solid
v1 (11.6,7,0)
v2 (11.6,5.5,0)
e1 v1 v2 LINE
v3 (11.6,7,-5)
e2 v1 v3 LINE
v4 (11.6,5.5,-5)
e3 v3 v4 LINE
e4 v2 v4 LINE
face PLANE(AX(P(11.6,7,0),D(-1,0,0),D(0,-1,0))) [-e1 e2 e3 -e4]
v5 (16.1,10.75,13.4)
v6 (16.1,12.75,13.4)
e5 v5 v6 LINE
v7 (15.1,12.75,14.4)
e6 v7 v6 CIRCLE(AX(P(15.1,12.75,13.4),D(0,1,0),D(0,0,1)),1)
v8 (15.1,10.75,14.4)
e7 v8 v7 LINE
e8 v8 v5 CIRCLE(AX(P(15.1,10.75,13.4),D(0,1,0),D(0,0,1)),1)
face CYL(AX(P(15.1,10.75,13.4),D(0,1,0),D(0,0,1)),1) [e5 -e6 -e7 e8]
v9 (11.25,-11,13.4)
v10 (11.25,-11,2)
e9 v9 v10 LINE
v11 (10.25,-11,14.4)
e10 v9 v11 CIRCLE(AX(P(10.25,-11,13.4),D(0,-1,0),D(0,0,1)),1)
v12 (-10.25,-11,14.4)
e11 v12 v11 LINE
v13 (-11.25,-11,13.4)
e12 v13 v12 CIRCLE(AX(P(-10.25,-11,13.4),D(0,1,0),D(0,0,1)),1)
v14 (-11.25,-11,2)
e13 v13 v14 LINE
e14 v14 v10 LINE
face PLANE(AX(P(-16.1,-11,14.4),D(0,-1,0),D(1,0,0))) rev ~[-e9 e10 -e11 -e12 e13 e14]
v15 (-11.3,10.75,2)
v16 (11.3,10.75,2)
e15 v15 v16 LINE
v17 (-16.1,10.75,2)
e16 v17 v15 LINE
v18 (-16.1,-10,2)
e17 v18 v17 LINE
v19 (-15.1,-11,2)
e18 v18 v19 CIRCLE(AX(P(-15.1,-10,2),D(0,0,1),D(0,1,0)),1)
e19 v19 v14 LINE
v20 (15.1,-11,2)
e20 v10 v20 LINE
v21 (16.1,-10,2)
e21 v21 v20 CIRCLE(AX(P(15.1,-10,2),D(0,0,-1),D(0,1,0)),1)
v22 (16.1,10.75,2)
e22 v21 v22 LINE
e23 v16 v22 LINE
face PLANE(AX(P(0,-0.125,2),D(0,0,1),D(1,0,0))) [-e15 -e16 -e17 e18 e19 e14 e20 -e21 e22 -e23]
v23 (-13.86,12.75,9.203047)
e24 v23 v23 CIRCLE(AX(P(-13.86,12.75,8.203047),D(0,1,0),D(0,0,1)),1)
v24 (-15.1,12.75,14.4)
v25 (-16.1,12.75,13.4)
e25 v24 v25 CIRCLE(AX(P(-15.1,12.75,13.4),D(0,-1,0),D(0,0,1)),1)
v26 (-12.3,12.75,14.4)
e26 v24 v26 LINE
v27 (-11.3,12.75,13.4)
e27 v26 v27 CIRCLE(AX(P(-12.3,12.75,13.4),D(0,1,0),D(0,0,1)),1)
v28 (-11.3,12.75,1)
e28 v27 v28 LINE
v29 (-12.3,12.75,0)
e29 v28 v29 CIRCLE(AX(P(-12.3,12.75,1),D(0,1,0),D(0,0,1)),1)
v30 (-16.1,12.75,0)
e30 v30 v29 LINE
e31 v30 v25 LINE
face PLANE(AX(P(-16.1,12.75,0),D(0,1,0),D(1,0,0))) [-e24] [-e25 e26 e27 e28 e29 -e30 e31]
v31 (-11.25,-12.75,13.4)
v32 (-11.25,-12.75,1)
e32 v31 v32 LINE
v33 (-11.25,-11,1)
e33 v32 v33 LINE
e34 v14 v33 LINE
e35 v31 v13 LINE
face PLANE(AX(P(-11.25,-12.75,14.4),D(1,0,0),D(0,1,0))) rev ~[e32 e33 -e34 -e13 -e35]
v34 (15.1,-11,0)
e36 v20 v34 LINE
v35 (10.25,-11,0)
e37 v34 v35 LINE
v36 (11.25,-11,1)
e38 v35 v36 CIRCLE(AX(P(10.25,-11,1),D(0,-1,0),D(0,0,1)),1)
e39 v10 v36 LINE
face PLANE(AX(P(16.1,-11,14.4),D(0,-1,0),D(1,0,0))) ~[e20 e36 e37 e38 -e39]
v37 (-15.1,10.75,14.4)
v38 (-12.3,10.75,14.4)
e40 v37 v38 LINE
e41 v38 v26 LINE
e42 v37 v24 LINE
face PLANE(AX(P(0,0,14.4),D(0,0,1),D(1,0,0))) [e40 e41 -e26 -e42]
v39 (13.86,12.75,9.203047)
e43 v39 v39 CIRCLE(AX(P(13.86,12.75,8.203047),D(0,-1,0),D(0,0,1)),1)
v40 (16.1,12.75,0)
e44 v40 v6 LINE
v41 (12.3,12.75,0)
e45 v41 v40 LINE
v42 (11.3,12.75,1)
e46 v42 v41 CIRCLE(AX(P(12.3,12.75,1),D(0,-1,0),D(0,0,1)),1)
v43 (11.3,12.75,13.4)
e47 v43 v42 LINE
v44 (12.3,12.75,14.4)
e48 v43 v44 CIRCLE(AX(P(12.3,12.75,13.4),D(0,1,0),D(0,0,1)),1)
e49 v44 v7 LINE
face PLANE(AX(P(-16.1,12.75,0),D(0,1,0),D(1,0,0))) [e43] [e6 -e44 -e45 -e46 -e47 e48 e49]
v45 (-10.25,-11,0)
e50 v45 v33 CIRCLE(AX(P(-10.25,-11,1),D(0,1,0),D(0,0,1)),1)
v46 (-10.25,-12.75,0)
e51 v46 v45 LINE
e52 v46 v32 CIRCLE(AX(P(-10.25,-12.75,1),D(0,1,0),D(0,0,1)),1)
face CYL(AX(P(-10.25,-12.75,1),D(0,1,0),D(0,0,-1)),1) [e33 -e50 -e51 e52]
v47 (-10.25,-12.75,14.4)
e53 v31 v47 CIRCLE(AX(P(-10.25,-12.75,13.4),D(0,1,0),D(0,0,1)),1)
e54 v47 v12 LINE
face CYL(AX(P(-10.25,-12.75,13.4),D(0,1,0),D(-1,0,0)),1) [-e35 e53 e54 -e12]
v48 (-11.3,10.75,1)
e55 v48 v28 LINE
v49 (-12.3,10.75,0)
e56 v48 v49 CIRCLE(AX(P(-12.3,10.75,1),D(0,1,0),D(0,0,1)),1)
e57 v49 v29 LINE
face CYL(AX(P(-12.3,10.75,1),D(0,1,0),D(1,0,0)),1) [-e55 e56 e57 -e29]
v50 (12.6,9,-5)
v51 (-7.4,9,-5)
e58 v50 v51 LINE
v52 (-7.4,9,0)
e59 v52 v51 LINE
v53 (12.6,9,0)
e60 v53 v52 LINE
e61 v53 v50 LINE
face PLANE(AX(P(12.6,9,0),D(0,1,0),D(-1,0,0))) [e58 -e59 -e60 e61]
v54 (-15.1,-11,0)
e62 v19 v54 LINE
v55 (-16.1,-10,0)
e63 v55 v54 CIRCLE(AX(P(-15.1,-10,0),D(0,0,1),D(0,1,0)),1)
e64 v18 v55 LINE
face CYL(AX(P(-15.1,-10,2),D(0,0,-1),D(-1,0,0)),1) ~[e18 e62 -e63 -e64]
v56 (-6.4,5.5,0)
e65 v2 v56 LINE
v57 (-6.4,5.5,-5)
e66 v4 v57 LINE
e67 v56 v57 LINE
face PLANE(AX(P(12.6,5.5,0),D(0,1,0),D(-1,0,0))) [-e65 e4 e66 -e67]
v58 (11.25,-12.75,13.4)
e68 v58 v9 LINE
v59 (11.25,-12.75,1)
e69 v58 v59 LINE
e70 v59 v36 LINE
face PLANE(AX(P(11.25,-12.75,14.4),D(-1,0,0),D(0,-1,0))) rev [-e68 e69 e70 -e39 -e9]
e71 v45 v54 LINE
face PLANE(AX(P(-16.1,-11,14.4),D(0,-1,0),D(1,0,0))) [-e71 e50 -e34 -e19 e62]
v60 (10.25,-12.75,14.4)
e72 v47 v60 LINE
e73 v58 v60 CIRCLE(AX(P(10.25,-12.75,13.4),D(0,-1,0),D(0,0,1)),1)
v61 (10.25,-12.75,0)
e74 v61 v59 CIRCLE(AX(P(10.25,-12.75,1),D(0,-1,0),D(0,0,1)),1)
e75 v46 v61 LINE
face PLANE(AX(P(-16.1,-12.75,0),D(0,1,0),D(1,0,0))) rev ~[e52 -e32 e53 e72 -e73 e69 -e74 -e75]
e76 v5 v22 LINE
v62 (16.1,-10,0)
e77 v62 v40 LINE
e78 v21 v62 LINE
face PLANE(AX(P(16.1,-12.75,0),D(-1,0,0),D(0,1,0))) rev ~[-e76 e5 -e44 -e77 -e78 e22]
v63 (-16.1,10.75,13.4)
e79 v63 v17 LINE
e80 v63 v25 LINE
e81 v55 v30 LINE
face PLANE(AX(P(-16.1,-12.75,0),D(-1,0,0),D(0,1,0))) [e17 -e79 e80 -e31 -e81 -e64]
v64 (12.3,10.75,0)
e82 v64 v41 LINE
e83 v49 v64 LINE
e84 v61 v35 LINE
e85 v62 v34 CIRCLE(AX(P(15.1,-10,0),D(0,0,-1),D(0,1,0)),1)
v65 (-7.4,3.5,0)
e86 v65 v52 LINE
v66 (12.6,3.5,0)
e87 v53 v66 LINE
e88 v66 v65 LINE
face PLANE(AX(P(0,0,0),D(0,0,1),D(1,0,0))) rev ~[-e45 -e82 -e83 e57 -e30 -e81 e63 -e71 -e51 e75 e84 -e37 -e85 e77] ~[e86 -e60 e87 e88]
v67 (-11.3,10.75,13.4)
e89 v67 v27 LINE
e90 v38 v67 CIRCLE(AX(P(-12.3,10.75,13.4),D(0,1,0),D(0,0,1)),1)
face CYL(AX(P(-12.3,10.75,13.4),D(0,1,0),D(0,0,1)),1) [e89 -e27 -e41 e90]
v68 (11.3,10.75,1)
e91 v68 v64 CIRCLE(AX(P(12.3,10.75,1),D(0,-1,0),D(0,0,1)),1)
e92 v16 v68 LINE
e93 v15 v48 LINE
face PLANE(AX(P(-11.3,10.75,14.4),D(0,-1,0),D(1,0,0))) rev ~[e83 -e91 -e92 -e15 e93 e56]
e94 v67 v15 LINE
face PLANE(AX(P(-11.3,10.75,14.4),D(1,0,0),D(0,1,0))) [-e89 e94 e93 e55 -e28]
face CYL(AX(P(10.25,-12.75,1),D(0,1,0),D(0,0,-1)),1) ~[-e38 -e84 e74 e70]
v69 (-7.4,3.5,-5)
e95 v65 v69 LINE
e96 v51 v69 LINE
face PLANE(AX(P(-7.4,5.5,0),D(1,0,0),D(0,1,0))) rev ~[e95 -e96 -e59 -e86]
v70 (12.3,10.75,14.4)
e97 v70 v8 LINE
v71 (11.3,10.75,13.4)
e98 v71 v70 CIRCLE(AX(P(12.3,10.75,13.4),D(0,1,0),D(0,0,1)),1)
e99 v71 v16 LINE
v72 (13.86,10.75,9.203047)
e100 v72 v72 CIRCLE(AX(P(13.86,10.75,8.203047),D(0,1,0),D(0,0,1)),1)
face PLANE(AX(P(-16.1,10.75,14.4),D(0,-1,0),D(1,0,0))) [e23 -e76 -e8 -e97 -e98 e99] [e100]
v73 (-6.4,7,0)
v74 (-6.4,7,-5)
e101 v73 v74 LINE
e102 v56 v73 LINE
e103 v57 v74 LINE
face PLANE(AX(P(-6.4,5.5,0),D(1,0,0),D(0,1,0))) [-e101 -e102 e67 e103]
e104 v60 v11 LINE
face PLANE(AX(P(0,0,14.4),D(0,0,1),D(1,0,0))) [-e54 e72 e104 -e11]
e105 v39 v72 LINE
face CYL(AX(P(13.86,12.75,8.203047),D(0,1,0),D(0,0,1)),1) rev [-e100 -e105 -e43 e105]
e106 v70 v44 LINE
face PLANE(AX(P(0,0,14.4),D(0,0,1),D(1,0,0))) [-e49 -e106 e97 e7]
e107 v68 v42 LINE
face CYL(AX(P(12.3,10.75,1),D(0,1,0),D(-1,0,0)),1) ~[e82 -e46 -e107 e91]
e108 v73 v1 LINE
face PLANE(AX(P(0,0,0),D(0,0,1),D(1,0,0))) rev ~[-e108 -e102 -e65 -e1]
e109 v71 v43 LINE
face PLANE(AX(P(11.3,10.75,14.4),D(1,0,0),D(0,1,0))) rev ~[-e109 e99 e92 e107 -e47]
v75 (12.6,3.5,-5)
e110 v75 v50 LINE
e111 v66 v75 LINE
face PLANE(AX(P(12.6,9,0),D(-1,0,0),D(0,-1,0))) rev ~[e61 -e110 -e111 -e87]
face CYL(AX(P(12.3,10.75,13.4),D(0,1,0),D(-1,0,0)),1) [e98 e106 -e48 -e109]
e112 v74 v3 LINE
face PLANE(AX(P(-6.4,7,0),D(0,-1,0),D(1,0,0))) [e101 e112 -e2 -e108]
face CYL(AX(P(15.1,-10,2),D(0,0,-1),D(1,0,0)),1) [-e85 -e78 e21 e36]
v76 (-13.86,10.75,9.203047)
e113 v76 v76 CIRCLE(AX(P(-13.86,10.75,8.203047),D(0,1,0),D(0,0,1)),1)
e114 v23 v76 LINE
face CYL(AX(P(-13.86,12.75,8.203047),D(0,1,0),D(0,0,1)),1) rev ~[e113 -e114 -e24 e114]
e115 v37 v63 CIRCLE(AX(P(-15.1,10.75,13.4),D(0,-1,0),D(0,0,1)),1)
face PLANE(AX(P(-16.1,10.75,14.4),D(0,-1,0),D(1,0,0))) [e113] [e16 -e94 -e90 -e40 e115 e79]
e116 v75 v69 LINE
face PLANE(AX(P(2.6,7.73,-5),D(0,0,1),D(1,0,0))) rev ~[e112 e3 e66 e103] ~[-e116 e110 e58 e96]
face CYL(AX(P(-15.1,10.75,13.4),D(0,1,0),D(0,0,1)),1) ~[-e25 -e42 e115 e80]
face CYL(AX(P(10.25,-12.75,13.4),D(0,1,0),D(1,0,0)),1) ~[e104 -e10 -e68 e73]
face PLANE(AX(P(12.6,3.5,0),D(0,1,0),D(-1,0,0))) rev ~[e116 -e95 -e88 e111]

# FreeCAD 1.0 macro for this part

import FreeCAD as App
import Part
import Sketcher


def edges_at(feature, points):
    """Names of the edges that pass closest to the given points."""
    edges = feature.Shape.Edges
    near = lambda p: min(range(len(edges)), key=lambda i: edges[i].distToShape(Part.Vertex(*p))[0])
    return sorted({f"Edge{near(p) + 1}" for p in points})


def add_polygon(sketch, points):
    """Adds a closed chain of lines whose ends are joined by coincident constraints."""
    first, n = sketch.GeometryCount, len(points)
    for a, b in zip(points, points[1:] + points[:1]):
        sketch.addGeometry(Part.LineSegment(App.Vector(*a, 0), App.Vector(*b, 0)), False)
    for i in range(n):
        sketch.addConstraint(Sketcher.Constraint("Coincident", first + i, 2, first + (i + 1) % n, 1))

doc = App.newDocument("Part")
body = doc.addObject("PartDesign::Body", "Body")

# Sketch on XY plane
sketch1 = doc.addObject("Sketcher::SketchObject", "Sketch")
body.addObject(sketch1)
sketch1.AttachmentSupport = (doc.XY_Plane, [""])
sketch1.MapMode = "FlatFace"
add_polygon(sketch1, [(-16, 13), (-16, -13), (16, -13), (16, 13)])  # lines 0-3
sketch1.addConstraint(Sketcher.Constraint("Vertical", 0))
sketch1.addConstraint(Sketcher.Constraint("Horizontal", 1))
sketch1.addConstraint(Sketcher.Constraint("Vertical", 2))
sketch1.addConstraint(Sketcher.Constraint("Horizontal", 3))
sketch1.addConstraint(Sketcher.Constraint("Symmetric", 0, 2, 2, 2, -1, 1))
sketch1.addConstraint(Sketcher.Constraint("DistanceX", 1, 1, 1, 2, 32.2))
sketch1.addConstraint(Sketcher.Constraint("DistanceY", 0, 2, 0, 1, 25.5))
pad1 = doc.addObject("PartDesign::Pad", "Pad")
body.addObject(pad1)
pad1.Profile = sketch1
pad1.Length = 14.4

# Sketch on XY plane
sketch2 = doc.addObject("Sketcher::SketchObject", "Sketch001")
body.addObject(sketch2)
sketch2.AttachmentSupport = (doc.XY_Plane, [""])
sketch2.MapMode = "FlatFace"
sketch2.AttachmentOffset = App.Placement(App.Vector(0, 0, 14.4), App.Rotation())
add_polygon(sketch2, [(-16, 11), (-16, -11), (16, -11), (16, 11)])  # lines 0-3
sketch2.addConstraint(Sketcher.Constraint("Vertical", 0))
sketch2.addConstraint(Sketcher.Constraint("Horizontal", 1))
sketch2.addConstraint(Sketcher.Constraint("Vertical", 2))
sketch2.addConstraint(Sketcher.Constraint("Horizontal", 3))
sketch2.addConstraint(Sketcher.Constraint("DistanceX", 1, 1, 1, 2, 32.2))
sketch2.addConstraint(Sketcher.Constraint("DistanceY", 0, 2, -1, 1, 11.0))
sketch2.addConstraint(Sketcher.Constraint("DistanceY", 0, 2, 0, 1, 21.75))
sketch2.addConstraint(Sketcher.Constraint("DistanceX", 0, 2, -1, 1, 16.1))
pocket1 = doc.addObject("PartDesign::Pocket", "Pocket")
body.addObject(pocket1)
pocket1.Profile = sketch2
pocket1.Length = 12.4

# Sketch on XY plane
sketch3 = doc.addObject("Sketcher::SketchObject", "Sketch002")
body.addObject(sketch3)
sketch3.AttachmentSupport = (doc.XY_Plane, [""])
sketch3.MapMode = "FlatFace"
sketch3.AttachmentOffset = App.Placement(App.Vector(0, 0, 14.4), App.Rotation())
add_polygon(sketch3, [(-11.3, 12.8), (-11.3, 10.8), (11.3, 10.8), (11.3, 12.8)])  # lines 0-3
sketch3.addConstraint(Sketcher.Constraint("Vertical", 0))
sketch3.addConstraint(Sketcher.Constraint("Horizontal", 1))
sketch3.addConstraint(Sketcher.Constraint("Vertical", 2))
sketch3.addConstraint(Sketcher.Constraint("Horizontal", 3))
sketch3.addConstraint(Sketcher.Constraint("DistanceY", 0, 2, 0, 1, 2.0))
sketch3.addConstraint(Sketcher.Constraint("DistanceX", 1, 1, 1, 2, 22.6))
sketch3.addConstraint(Sketcher.Constraint("DistanceX", 0, 2, -1, 1, 11.3))
sketch3.addConstraint(Sketcher.Constraint("DistanceY", -1, 1, 0, 2, 10.75))
pocket2 = doc.addObject("PartDesign::Pocket", "Pocket001")
body.addObject(pocket2)
pocket2.Profile = sketch3
pocket2.Length = 14.4
doc.recompute()

fillet = doc.addObject("PartDesign::Fillet", "Fillet")
body.addObject(fillet)
fillet.Base = (pocket2, edges_at(pocket2, [(-11.3, 11.75, 14.4)]))
fillet.Radius = 1
doc.recompute()

fillet2 = doc.addObject("PartDesign::Fillet", "Fillet001")
body.addObject(fillet2)
fillet2.Base = (fillet, edges_at(fillet, [(-16.1, 11.75, 14.4)]))
fillet2.Radius = 1
doc.recompute()

fillet3 = doc.addObject("PartDesign::Fillet", "Fillet002")
body.addObject(fillet3)
fillet3.Base = (fillet2, edges_at(fillet2, [(11.3, 11.75, 14.4)]))
fillet3.Radius = 1
doc.recompute()

fillet4 = doc.addObject("PartDesign::Fillet", "Fillet003")
body.addObject(fillet4)
fillet4.Base = (fillet3, edges_at(fillet3, [(16.1, 11.75, 14.4)]))
fillet4.Radius = 1

# Sketch on XZ plane
sketch4 = doc.addObject("Sketcher::SketchObject", "Sketch003")
body.addObject(sketch4)
sketch4.AttachmentSupport = (doc.XZ_Plane, [""])
sketch4.MapMode = "FlatFace"
sketch4.AttachmentOffset = App.Placement(App.Vector(0, 0, -12.75), App.Rotation())
sketch4.addGeometry(Part.Circle(App.Vector(-13.9, 8.2, 0), App.Vector(0, 0, 1), 1), False)
sketch4.addConstraint(Sketcher.Constraint("Diameter", 0, 2.0))
sketch4.addConstraint(Sketcher.Constraint("DistanceX", 0, 3, -1, 1, 13.86))
sketch4.addConstraint(Sketcher.Constraint("DistanceY", -1, 1, 0, 3, 8.203047))
pocket3 = doc.addObject("PartDesign::Pocket", "Pocket002")
body.addObject(pocket3)
pocket3.Profile = sketch4
pocket3.Length = 10
pocket3.Reversed = True
doc.recompute()

mirrored = doc.addObject("PartDesign::Mirrored", "Mirrored")
body.addObject(mirrored)
mirrored.Originals = [pocket3]
mirrored.MirrorPlane = (doc.YZ_Plane, [""])
body.Tip = mirrored

# Sketch on XY plane
sketch5 = doc.addObject("Sketcher::SketchObject", "Sketch004")
body.addObject(sketch5)
sketch5.AttachmentSupport = (doc.XY_Plane, [""])
sketch5.MapMode = "FlatFace"
sketch5.AttachmentOffset = App.Placement(App.Vector(0, 0, 14.4), App.Rotation())
add_polygon(sketch5, [(-16.1, -11), (-16.1, -12.8), (-11.2, -12.8), (-11.2, -11)])  # lines 0-3
sketch5.addConstraint(Sketcher.Constraint("Vertical", 0))
sketch5.addConstraint(Sketcher.Constraint("Horizontal", 1))
sketch5.addConstraint(Sketcher.Constraint("Vertical", 2))
sketch5.addConstraint(Sketcher.Constraint("Horizontal", 3))
sketch5.addConstraint(Sketcher.Constraint("DistanceY", 2, 2, -1, 1, 11.0))
sketch5.addConstraint(Sketcher.Constraint("DistanceX", 1, 1, 1, 2, 4.85))
sketch5.addConstraint(Sketcher.Constraint("DistanceY", 0, 2, 0, 1, 1.75))
sketch5.addConstraint(Sketcher.Constraint("DistanceX", 0, 2, -1, 1, 16.1))
pocket4 = doc.addObject("PartDesign::Pocket", "Pocket003")
body.addObject(pocket4)
pocket4.Profile = sketch5
pocket4.Length = 20
doc.recompute()

mirrored2 = doc.addObject("PartDesign::Mirrored", "Mirrored001")
body.addObject(mirrored2)
mirrored2.Originals = [pocket4]
mirrored2.MirrorPlane = (doc.YZ_Plane, [""])
body.Tip = mirrored2
doc.recompute()

fillet5 = doc.addObject("PartDesign::Fillet", "Fillet004")
body.addObject(fillet5)
fillet5.Base = (mirrored2, edges_at(mirrored2, [
    (16.1, -11, 1),
    (11.25, -11.875, 14.4),
    (11.25, -11.875, 0),
    (-11.25, -11.875, 0),
    (-16.1, -11, 1),
    (-11.25, -11.875, 14.4),
]))
fillet5.Radius = 1
doc.recompute()

fillet6 = doc.addObject("PartDesign::Fillet", "Fillet005")
body.addObject(fillet6)
fillet6.Base = (fillet5, edges_at(fillet5, [(-11.3, 11.75, 0), (11.3, 11.75, 0)]))
fillet6.Radius = 1

# Sketch on XY plane
sketch6 = doc.addObject("Sketcher::SketchObject", "Sketch005")
body.addObject(sketch6)
sketch6.AttachmentSupport = (doc.XY_Plane, [""])
sketch6.MapMode = "FlatFace"
add_polygon(sketch6, [(12.6, 5.5), (12.6, 3.5), (-7.4, 3.5), (-7.4, 5.5)])  # lines 0-3
sketch6.addConstraint(Sketcher.Constraint("Vertical", 0))
sketch6.addConstraint(Sketcher.Constraint("Horizontal", 1))
sketch6.addConstraint(Sketcher.Constraint("Vertical", 2))
sketch6.addConstraint(Sketcher.Constraint("Horizontal", 3))
sketch6.addConstraint(Sketcher.Constraint("DistanceX", 1, 2, 1, 1, 20.0))
sketch6.addConstraint(Sketcher.Constraint("DistanceY", 0, 2, 0, 1, 2.0))
sketch6.addConstraint(Sketcher.Constraint("DistanceX", -1, 1, 0, 2, 12.6))
sketch6.addConstraint(Sketcher.Constraint("DistanceY", -1, 1, 0, 2, 3.5))
pad2 = doc.addObject("PartDesign::Pad", "Pad001")
body.addObject(pad2)
pad2.Profile = sketch6
pad2.Length = 5
pad2.Reversed = True

# Sketch on XY plane
sketch7 = doc.addObject("Sketcher::SketchObject", "Sketch006")
body.addObject(sketch7)
sketch7.AttachmentSupport = (doc.XY_Plane, [""])
sketch7.MapMode = "FlatFace"
add_polygon(sketch7, [(-7.4, 9), (12.6, 9), (12.6, 5.5), (11.6, 5.5), (11.6, 7), (-6.4, 7), (-6.4, 5.5), (-7.4, 5.5)])  # lines 0-7
sketch7.addConstraint(Sketcher.Constraint("Horizontal", 0))
sketch7.addConstraint(Sketcher.Constraint("Vertical", 1))
sketch7.addConstraint(Sketcher.Constraint("Horizontal", 2))
sketch7.addConstraint(Sketcher.Constraint("Vertical", 3))
sketch7.addConstraint(Sketcher.Constraint("Horizontal", 4))
sketch7.addConstraint(Sketcher.Constraint("Vertical", 5))
sketch7.addConstraint(Sketcher.Constraint("Horizontal", 6))
sketch7.addConstraint(Sketcher.Constraint("Vertical", 7))
sketch7.addConstraint(Sketcher.Constraint("Horizontal", 2, 2, 5, 2))
sketch7.addConstraint(Sketcher.Constraint("Equal", 2, 6))
sketch7.addConstraint(Sketcher.Constraint("DistanceX", 0, 1, 0, 2, 20.0))
sketch7.addConstraint(Sketcher.Constraint("DistanceX", 2, 2, 2, 1, 1.0))
sketch7.addConstraint(Sketcher.Constraint("DistanceY", 1, 2, 1, 1, 3.5))
sketch7.addConstraint(Sketcher.Constraint("DistanceY", 3, 1, 3, 2, 1.5))
sketch7.addConstraint(Sketcher.Constraint("DistanceY", -1, 1, 0, 2, 9.0))
sketch7.addConstraint(Sketcher.Constraint("DistanceX", -1, 1, 0, 2, 12.6))
pad3 = doc.addObject("PartDesign::Pad", "Pad002")
body.addObject(pad3)
pad3.Profile = sketch7
pad3.Length = 5
pad3.Reversed = True

doc.recompute()
